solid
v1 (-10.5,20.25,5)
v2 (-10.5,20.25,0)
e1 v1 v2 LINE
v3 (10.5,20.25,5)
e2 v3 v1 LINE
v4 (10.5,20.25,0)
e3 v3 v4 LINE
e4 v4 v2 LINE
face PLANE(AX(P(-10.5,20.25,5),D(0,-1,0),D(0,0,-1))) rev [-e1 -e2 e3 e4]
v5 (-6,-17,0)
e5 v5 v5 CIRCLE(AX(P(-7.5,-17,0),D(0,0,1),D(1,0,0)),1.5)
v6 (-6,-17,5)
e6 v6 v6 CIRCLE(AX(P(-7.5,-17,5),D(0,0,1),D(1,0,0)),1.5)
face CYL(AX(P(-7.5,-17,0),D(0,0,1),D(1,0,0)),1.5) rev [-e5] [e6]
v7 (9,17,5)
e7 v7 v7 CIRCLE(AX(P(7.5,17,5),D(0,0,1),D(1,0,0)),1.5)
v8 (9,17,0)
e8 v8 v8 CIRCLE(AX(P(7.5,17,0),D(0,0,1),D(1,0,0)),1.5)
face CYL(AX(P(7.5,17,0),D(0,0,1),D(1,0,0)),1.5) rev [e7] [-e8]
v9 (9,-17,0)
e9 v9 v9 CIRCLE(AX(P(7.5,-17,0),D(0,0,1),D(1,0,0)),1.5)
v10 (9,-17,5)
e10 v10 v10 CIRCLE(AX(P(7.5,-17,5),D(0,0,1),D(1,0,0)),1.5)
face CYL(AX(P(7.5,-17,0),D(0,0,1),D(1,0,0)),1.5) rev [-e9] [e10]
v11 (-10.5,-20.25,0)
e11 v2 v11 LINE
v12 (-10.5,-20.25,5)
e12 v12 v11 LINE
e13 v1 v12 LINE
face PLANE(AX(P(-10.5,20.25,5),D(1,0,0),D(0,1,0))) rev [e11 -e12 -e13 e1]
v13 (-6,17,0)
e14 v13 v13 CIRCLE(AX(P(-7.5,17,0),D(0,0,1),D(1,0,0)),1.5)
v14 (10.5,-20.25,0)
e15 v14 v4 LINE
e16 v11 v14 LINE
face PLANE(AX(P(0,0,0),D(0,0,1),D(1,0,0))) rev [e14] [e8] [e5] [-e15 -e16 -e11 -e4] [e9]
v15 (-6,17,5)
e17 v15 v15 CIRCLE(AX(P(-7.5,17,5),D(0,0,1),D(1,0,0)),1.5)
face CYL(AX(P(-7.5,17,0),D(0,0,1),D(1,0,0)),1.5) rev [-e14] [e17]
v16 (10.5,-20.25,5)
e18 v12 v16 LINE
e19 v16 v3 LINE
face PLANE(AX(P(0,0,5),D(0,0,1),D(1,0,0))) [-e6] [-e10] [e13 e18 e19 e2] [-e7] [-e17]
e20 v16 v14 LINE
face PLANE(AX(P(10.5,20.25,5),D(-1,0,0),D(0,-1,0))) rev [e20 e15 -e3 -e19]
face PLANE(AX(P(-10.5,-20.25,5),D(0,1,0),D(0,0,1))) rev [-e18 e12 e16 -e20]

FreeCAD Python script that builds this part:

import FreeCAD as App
import Part
import Sketcher
from FreeCAD import Vector
Q = App.Units.Quantity

doc = App.newDocument("Part")
body = doc.addObject("PartDesign::Body", "Body")

sketch1 = body.newObject("Sketcher::SketchObject", "Sketch")
sketch1.AttachmentSupport = (doc.getObject("XY_Plane"), [""])
sketch1.MapMode = "FlatFace"
sketch1.addGeometry([
    Part.LineSegment(Vector(-10, 20, 0), Vector(-10, -20, 0)),
    Part.LineSegment(Vector(-10, -20, 0), Vector(10, -20, 0)),
    Part.LineSegment(Vector(10, -20, 0), Vector(10, 20, 0)),
    Part.LineSegment(Vector(10, 20, 0), Vector(-10, 20, 0)),
], False)
sketch1.addConstraint([
    Sketcher.Constraint("Coincident", 0, 2, 1, 1),
    Sketcher.Constraint("Coincident", 1, 2, 2, 1),
    Sketcher.Constraint("Coincident", 2, 2, 3, 1),
    Sketcher.Constraint("Coincident", 3, 2, 0, 1),
    Sketcher.Constraint("Vertical", 0),
    Sketcher.Constraint("Horizontal", 1),
    Sketcher.Constraint("Vertical", 2),
    Sketcher.Constraint("Horizontal", 3),
    Sketcher.Constraint("Symmetric", 0, 2, 2, 2, -1, 1),
    Sketcher.Constraint("DistanceX", 1, 1, 1, 2, Q("21 mm")),
    Sketcher.Constraint("DistanceY", 0, 2, 0, 1, Q("40.5 mm")),
])
pad1 = body.newObject("PartDesign::Pad", "Pad")
pad1.Profile = sketch1
pad1.Length = 5

sketch2 = body.newObject("Sketcher::SketchObject", "Sketch001")
sketch2.AttachmentSupport = (doc.getObject("XY_Plane"), [""])
sketch2.MapMode = "FlatFace"
sketch2.AttachmentOffset = App.Placement(Vector(0, 0, 5), App.Rotation())
sketch2.addGeometry([
    Part.Circle(Vector(-7.5, 17, 0), Vector(0, 0, 1), 1.5),
    Part.Circle(Vector(7.5, 17, 0), Vector(0, 0, 1), 1.5),
    Part.Circle(Vector(-7.5, -17, 0), Vector(0, 0, 1), 1.5),
    Part.Circle(Vector(7.5, -17, 0), Vector(0, 0, 1), 1.5),
], False)
sketch2.addConstraint([
    Sketcher.Constraint("Equal", 0, 1),
    Sketcher.Constraint("Equal", 1, 2),
    Sketcher.Constraint("Equal", 2, 3),
    Sketcher.Constraint("Symmetric", 1, 3, 2, 3, -1, 1),
    Sketcher.Constraint("Symmetric", 0, 3, 3, 3, -1, 1),
    Sketcher.Constraint("Symmetric", 0, 3, 1, 3, -2),
    Sketcher.Constraint("Diameter", 0, Q("3 mm")),
    Sketcher.Constraint("DistanceY", -1, 1, 0, 3, Q("17 mm")),
    Sketcher.Constraint("DistanceX", 0, 3, 1, 3, Q("15 mm")),
])
pocket1 = body.newObject("PartDesign::Pocket", "Pocket")
pocket1.Profile = sketch2
pocket1.Type = "ThroughAll"

doc.recompute()
